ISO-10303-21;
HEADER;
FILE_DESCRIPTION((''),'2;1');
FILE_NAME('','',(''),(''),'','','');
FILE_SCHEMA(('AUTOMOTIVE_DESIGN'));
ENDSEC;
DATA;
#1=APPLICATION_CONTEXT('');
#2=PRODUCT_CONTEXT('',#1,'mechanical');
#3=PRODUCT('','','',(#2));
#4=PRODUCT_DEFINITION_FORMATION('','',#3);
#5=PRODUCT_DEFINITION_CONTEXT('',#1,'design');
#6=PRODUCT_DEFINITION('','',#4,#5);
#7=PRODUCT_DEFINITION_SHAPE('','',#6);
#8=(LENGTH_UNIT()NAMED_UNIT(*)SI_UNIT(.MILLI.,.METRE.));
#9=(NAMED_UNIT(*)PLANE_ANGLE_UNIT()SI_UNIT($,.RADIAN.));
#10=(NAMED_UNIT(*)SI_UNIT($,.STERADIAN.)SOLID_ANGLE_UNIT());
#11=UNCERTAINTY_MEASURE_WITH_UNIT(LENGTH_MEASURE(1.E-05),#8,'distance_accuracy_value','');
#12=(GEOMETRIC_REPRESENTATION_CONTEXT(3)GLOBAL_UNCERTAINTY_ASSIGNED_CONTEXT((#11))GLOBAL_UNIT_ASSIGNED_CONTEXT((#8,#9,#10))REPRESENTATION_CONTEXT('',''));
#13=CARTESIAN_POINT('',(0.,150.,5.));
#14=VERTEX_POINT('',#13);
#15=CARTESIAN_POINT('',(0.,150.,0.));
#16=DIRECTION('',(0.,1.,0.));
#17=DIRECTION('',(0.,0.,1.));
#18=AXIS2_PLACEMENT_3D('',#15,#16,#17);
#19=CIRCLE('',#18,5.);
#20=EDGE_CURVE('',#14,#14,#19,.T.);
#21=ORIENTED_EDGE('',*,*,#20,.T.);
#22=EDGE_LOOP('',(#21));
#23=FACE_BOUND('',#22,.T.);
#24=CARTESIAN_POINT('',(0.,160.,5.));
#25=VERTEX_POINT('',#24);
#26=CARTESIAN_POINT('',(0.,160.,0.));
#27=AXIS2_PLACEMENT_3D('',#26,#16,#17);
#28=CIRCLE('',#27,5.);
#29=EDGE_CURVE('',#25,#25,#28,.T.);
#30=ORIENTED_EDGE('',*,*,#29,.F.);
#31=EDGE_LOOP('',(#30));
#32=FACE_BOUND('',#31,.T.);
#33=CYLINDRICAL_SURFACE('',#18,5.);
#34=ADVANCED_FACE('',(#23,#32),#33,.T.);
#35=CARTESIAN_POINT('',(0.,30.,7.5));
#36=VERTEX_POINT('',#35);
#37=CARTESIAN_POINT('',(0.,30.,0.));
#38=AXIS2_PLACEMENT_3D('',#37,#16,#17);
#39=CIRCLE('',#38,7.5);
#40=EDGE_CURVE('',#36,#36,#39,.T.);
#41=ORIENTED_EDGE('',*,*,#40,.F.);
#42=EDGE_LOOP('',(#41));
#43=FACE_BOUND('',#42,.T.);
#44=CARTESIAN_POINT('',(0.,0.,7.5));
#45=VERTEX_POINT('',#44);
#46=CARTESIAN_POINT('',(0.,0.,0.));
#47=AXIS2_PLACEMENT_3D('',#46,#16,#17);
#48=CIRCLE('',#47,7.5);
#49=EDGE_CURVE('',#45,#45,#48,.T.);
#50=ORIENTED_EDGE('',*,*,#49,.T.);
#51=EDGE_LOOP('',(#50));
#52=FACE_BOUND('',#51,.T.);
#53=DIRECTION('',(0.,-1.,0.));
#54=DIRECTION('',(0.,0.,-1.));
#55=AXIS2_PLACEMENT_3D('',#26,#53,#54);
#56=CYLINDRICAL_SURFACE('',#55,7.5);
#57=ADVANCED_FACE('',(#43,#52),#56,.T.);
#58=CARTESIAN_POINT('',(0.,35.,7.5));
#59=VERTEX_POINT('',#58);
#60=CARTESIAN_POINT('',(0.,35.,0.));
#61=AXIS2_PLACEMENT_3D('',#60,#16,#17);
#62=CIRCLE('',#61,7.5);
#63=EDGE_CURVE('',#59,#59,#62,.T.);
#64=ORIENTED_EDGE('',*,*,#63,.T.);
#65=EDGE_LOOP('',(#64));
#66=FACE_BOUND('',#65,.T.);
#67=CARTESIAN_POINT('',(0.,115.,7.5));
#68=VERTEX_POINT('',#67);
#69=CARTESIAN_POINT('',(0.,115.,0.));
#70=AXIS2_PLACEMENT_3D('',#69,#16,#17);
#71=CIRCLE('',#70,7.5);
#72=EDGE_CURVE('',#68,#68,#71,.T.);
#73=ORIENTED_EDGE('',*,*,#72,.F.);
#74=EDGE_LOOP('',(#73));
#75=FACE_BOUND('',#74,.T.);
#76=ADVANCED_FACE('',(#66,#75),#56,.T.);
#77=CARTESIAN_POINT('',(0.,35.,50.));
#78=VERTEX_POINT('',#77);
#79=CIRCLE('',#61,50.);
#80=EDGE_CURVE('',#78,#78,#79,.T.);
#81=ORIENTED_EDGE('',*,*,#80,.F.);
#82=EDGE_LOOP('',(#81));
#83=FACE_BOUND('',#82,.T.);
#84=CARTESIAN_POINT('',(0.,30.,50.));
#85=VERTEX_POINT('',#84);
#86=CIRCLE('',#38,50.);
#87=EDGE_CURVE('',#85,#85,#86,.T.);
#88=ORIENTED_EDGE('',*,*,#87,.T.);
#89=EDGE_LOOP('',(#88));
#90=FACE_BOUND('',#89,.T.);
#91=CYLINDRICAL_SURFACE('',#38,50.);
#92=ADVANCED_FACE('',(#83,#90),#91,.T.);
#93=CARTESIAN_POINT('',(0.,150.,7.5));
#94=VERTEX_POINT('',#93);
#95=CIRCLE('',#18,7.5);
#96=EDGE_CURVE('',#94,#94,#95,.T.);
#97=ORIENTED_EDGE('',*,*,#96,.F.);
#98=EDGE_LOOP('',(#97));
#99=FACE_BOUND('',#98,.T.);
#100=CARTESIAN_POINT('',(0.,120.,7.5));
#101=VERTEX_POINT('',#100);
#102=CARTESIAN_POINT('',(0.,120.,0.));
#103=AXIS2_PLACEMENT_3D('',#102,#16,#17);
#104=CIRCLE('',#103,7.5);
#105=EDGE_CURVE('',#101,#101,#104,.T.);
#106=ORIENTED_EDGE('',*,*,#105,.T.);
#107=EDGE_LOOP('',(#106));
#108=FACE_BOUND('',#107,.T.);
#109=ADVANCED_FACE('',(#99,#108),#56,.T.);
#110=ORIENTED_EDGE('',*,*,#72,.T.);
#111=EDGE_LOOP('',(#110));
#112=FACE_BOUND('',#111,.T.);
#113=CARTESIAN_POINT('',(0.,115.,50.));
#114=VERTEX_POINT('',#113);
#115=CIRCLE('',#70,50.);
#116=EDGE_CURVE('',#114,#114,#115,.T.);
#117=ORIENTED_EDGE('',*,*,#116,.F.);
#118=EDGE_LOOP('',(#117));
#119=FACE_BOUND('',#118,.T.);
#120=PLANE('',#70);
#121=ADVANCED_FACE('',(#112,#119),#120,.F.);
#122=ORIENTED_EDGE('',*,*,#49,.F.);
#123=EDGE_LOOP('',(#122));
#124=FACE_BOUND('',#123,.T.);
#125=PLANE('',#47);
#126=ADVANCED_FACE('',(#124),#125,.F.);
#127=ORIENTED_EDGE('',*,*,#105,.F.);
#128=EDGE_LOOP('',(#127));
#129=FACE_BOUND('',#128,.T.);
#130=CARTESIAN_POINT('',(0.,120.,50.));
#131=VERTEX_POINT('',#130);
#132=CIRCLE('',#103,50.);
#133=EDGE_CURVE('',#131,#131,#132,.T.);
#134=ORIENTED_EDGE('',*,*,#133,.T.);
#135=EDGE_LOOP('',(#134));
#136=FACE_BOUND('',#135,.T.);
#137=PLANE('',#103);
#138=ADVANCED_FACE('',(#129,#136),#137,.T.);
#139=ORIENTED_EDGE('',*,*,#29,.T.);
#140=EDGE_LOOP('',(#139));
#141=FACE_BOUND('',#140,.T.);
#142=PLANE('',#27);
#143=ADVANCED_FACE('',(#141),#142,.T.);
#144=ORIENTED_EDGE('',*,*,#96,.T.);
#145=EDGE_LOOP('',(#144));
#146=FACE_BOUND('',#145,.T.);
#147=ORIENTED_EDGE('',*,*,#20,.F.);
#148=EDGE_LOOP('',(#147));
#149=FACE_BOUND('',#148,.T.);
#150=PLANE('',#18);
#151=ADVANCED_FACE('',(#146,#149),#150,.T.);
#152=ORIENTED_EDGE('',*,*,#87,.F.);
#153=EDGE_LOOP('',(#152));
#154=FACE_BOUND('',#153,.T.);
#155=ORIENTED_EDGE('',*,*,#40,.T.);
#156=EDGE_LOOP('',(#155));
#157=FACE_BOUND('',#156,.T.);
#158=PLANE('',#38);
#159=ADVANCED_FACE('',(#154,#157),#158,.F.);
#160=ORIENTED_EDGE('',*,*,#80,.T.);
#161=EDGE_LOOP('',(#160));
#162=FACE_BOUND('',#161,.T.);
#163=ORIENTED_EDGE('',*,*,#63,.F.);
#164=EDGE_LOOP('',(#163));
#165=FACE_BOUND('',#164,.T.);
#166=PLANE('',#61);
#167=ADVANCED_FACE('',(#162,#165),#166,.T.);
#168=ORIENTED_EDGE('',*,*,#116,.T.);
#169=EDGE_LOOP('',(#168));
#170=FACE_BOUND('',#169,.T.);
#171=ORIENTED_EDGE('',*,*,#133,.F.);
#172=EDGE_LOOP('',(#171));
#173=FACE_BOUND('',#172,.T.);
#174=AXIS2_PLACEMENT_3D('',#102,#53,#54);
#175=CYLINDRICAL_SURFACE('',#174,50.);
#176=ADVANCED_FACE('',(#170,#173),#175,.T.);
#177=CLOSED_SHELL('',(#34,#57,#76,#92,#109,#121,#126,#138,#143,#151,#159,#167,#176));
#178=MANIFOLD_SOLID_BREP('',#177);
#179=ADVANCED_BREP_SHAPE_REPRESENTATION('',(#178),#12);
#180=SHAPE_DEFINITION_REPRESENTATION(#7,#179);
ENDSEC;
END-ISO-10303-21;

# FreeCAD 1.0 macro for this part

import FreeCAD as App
import Part
import Sketcher
from FreeCAD import Vector
Q = App.Units.Quantity

doc = App.newDocument("Part")
params = doc.addObject("Spreadsheet::Sheet", "Params")
for row, (alias, value) in enumerate([
    ("sketch1_diameter", "15 mm"),
    ("pad1_length", "160 mm"),
    ("sketch2_diameter", "100 mm"),
    ("pad2_length", "5 mm"),
    ("sketch3_diameter", "100 mm"),
    ("sketch3_diameter2", "15 mm"),
    ("pad3_length", "5 mm"),
    ("sketch4_diameter", "15 mm"),
    ("sketch4_diameter2", "10 mm"),
    ("pocket1_length", "10 mm"),
], start=1):
    params.set(f"A{row}", alias)
    params.set(f"B{row}", "=" + value)
    params.setAlias(f"B{row}", alias)

body = doc.addObject("PartDesign::Body", "Body")

sketch1 = body.newObject("Sketcher::SketchObject", "Sketch")
sketch1.AttachmentSupport = (doc.getObject("XZ_Plane"), [""])
sketch1.MapMode = "FlatFace"
sketch1.addGeometry(Part.Circle(Vector(0, 0, 0), Vector(0, 0, 1), 8), False)
sketch1.addConstraint(Sketcher.Constraint("Coincident", 0, 3, -1, 1))
sketch1.addConstraint(Sketcher.Constraint("Diameter", 0, Q("15 mm")))
sketch1.setExpression("Constraints[1]", "Params.sketch1_diameter")
pad1 = body.newObject("PartDesign::Pad", "Pad")
pad1.Profile = sketch1
pad1.setExpression("Length", "Params.pad1_length")
pad1.Reversed = True

sketch2 = body.newObject("Sketcher::SketchObject", "Sketch001")
sketch2.AttachmentSupport = (doc.getObject("XZ_Plane"), [""])
sketch2.MapMode = "FlatFace"
sketch2.AttachmentOffset = App.Placement(Vector(0, 0, -35), App.Rotation())
sketch2.addGeometry(Part.Circle(Vector(0, 0, 0), Vector(0, 0, 1), 50), False)
sketch2.addConstraint(Sketcher.Constraint("Coincident", 0, 3, -1, 1))
sketch2.addConstraint(Sketcher.Constraint("Diameter", 0, Q("100 mm")))
sketch2.setExpression("Constraints[1]", "Params.sketch2_diameter")
pad2 = body.newObject("PartDesign::Pad", "Pad001")
pad2.Profile = sketch2
pad2.setExpression("Length", "Params.pad2_length")

sketch3 = body.newObject("Sketcher::SketchObject", "Sketch002")
sketch3.AttachmentSupport = (doc.getObject("XZ_Plane"), [""])
sketch3.MapMode = "FlatFace"
sketch3.AttachmentOffset = App.Placement(Vector(0, 0, -115), App.Rotation())
sketch3.addGeometry(Part.Circle(Vector(0, 0, 0), Vector(0, 0, 1), 50), False)
sketch3.addGeometry(Part.Circle(Vector(0, 0, 0), Vector(0, 0, 1), 8), False)
sketch3.addConstraint(Sketcher.Constraint("Coincident", 0, 3, -1, 1))
sketch3.addConstraint(Sketcher.Constraint("Coincident", 1, 3, -1, 1))
sketch3.addConstraint(Sketcher.Constraint("Diameter", 0, Q("100 mm")))
sketch3.addConstraint(Sketcher.Constraint("Diameter", 1, Q("15 mm")))
sketch3.setExpression("Constraints[2]", "Params.sketch3_diameter")
sketch3.setExpression("Constraints[3]", "Params.sketch3_diameter2")
pad3 = body.newObject("PartDesign::Pad", "Pad002")
pad3.Profile = sketch3
pad3.setExpression("Length", "Params.pad3_length")
pad3.Reversed = True

sketch4 = body.newObject("Sketcher::SketchObject", "Sketch003")
sketch4.AttachmentSupport = (doc.getObject("XZ_Plane"), [""])
sketch4.MapMode = "FlatFace"
sketch4.AttachmentOffset = App.Placement(Vector(0, 0, -150), App.Rotation())
sketch4.addGeometry(Part.Circle(Vector(0, 0, 0), Vector(0, 0, 1), 8), False)
sketch4.addGeometry(Part.Circle(Vector(0, 0, 0), Vector(0, 0, 1), 5), False)
sketch4.addConstraint(Sketcher.Constraint("Coincident", 0, 3, -1, 1))
sketch4.addConstraint(Sketcher.Constraint("Coincident", 1, 3, -1, 1))
sketch4.addConstraint(Sketcher.Constraint("Diameter", 0, Q("15 mm")))
sketch4.addConstraint(Sketcher.Constraint("Diameter", 1, Q("10 mm")))
sketch4.setExpression("Constraints[2]", "Params.sketch4_diameter")
sketch4.setExpression("Constraints[3]", "Params.sketch4_diameter2")
pocket1 = body.newObject("PartDesign::Pocket", "Pocket")
pocket1.Profile = sketch4
pocket1.setExpression("Length", "Params.pocket1_length")

doc.recompute()
